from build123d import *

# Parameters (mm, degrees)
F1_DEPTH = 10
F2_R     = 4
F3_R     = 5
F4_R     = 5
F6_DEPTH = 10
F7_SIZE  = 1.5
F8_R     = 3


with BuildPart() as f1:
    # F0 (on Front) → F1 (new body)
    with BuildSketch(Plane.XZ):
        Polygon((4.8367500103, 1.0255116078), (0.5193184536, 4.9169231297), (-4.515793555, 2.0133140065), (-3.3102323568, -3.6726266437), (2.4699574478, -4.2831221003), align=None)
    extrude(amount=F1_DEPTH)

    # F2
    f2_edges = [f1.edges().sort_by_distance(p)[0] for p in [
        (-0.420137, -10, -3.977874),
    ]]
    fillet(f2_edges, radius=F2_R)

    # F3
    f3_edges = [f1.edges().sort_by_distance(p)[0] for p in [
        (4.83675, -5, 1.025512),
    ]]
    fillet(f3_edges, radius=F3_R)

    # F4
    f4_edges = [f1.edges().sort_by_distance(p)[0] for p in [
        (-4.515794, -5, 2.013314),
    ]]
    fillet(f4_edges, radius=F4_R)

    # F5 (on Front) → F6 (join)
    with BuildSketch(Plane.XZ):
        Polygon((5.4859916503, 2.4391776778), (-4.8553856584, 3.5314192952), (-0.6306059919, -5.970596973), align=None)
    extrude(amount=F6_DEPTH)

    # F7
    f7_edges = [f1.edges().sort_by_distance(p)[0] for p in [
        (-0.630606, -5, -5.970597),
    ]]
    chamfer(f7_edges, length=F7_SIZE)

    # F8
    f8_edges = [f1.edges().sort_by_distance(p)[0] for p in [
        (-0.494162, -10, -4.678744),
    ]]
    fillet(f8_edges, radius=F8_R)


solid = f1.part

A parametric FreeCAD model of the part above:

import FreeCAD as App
import Part
import Sketcher
Q = App.Units.Quantity


def edges_at(feature, points):
    """Names of the edges that pass closest to the given points."""
    edges = feature.Shape.Edges
    near = lambda p: min(range(len(edges)), key=lambda i: edges[i].distToShape(Part.Vertex(*p))[0])
    return sorted({f"Edge{near(p) + 1}" for p in points})


def add_polygon(sketch, points):
    """Adds a closed chain of lines whose ends are joined by coincident constraints."""
    first, n = sketch.GeometryCount, len(points)
    for a, b in zip(points, points[1:] + points[:1]):
        sketch.addGeometry(Part.LineSegment(App.Vector(*a, 0), App.Vector(*b, 0)), False)
    for i in range(n):
        sketch.addConstraint(Sketcher.Constraint("Coincident", first + i, 2, first + (i + 1) % n, 1))

doc = App.newDocument("Part")
params = doc.addObject("Spreadsheet::Sheet", "Params")
for row, (alias, value) in enumerate([
    ("pad1_length", "10 mm"),
    ("fillet_radius", "4 mm"),
    ("fillet2_radius", "5 mm"),
    ("fillet3_radius", "5 mm"),
    ("pad2_length", "10 mm"),
    ("chamfer_size", "1.5 mm"),
    ("fillet4_radius", "3 mm"),
], start=1):
    params.set(f"A{row}", alias)
    params.set(f"B{row}", "=" + value)
    params.setAlias(f"B{row}", alias)

body = doc.addObject("PartDesign::Body", "Body")

sketch1 = doc.addObject("Sketcher::SketchObject", "Sketch")
body.addObject(sketch1)
sketch1.AttachmentSupport = (doc.XZ_Plane, [""])
sketch1.MapMode = "FlatFace"
add_polygon(sketch1, [(5, 1), (1, 5), (-5, 2), (-3, -4), (2, -4)])
sketch1.addConstraint([
    Sketcher.Constraint("Equal", 0, 1),
    Sketcher.Constraint("Equal", 1, 2),
    Sketcher.Constraint("Equal", 2, 3),
    Sketcher.Constraint("Equal", 3, 4),
    Sketcher.Constraint("Distance", 0, Q("5.81234 mm")),
    Sketcher.Constraint("DistanceX", -1, 1, 0, 2, Q("0.519318 mm")),
    Sketcher.Constraint("DistanceX", -1, 1, 4, 2, Q("4.83675 mm")),
    Sketcher.Constraint("DistanceY", -1, 1, 4, 2, Q("1.025512 mm")),
    Sketcher.Constraint("DistanceY", 1, 2, 0, 2, Q("2.903609 mm")),
    Sketcher.Constraint("DistanceX", 1, 2, 2, 2, Q("1.205561 mm")),
])
pad1 = doc.addObject("PartDesign::Pad", "Pad")
body.addObject(pad1)
pad1.Profile = sketch1
pad1.setExpression("Length", "Params.pad1_length")
doc.recompute()

fillet = doc.addObject("PartDesign::Fillet", "Fillet")
body.addObject(fillet)
fillet.Base = (pad1, edges_at(pad1, [(-0.42, -10, -3.978)]))
fillet.setExpression("Radius", "Params.fillet_radius")
doc.recompute()

fillet2 = doc.addObject("PartDesign::Fillet", "Fillet001")
body.addObject(fillet2)
fillet2.Base = (fillet, edges_at(fillet, [(4.837, -5, 1.026)]))
fillet2.setExpression("Radius", "Params.fillet2_radius")
doc.recompute()

fillet3 = doc.addObject("PartDesign::Fillet", "Fillet002")
body.addObject(fillet3)
fillet3.Base = (fillet2, edges_at(fillet2, [(-4.516, -5, 2.013)]))
fillet3.setExpression("Radius", "Params.fillet3_radius")

sketch2 = doc.addObject("Sketcher::SketchObject", "Sketch001")
body.addObject(sketch2)
sketch2.AttachmentSupport = (doc.XZ_Plane, [""])
sketch2.MapMode = "FlatFace"
add_polygon(sketch2, [(5, 2), (-5, 4), (-1, -6)])
sketch2.addConstraint([
    Sketcher.Constraint("Equal", 0, 1),
    Sketcher.Constraint("Equal", 1, 2),
    Sketcher.Constraint("DistanceY", -1, 1, 0, 2, Q("3.531419 mm")),
    Sketcher.Constraint("DistanceX", -1, 1, 2, 2, Q("5.485992 mm")),
    Sketcher.Constraint("DistanceX", 0, 2, 1, 2, Q("4.22478 mm")),
    Sketcher.Constraint("DistanceY", 2, 2, 0, 2, Q("1.092242 mm")),
])
pad2 = doc.addObject("PartDesign::Pad", "Pad001")
body.addObject(pad2)
pad2.Profile = sketch2
pad2.setExpression("Length", "Params.pad2_length")
doc.recompute()

chamfer = doc.addObject("PartDesign::Chamfer", "Chamfer")
body.addObject(chamfer)
chamfer.Base = (pad2, edges_at(pad2, [(-0.631, -5, -5.971)]))
chamfer.setExpression("Size", "Params.chamfer_size")
doc.recompute()

fillet4 = doc.addObject("PartDesign::Fillet", "Fillet003")
body.addObject(fillet4)
fillet4.Base = (chamfer, edges_at(chamfer, [(-0.494, -10, -4.679)]))
fillet4.setExpression("Radius", "Params.fillet4_radius")

doc.recompute()
